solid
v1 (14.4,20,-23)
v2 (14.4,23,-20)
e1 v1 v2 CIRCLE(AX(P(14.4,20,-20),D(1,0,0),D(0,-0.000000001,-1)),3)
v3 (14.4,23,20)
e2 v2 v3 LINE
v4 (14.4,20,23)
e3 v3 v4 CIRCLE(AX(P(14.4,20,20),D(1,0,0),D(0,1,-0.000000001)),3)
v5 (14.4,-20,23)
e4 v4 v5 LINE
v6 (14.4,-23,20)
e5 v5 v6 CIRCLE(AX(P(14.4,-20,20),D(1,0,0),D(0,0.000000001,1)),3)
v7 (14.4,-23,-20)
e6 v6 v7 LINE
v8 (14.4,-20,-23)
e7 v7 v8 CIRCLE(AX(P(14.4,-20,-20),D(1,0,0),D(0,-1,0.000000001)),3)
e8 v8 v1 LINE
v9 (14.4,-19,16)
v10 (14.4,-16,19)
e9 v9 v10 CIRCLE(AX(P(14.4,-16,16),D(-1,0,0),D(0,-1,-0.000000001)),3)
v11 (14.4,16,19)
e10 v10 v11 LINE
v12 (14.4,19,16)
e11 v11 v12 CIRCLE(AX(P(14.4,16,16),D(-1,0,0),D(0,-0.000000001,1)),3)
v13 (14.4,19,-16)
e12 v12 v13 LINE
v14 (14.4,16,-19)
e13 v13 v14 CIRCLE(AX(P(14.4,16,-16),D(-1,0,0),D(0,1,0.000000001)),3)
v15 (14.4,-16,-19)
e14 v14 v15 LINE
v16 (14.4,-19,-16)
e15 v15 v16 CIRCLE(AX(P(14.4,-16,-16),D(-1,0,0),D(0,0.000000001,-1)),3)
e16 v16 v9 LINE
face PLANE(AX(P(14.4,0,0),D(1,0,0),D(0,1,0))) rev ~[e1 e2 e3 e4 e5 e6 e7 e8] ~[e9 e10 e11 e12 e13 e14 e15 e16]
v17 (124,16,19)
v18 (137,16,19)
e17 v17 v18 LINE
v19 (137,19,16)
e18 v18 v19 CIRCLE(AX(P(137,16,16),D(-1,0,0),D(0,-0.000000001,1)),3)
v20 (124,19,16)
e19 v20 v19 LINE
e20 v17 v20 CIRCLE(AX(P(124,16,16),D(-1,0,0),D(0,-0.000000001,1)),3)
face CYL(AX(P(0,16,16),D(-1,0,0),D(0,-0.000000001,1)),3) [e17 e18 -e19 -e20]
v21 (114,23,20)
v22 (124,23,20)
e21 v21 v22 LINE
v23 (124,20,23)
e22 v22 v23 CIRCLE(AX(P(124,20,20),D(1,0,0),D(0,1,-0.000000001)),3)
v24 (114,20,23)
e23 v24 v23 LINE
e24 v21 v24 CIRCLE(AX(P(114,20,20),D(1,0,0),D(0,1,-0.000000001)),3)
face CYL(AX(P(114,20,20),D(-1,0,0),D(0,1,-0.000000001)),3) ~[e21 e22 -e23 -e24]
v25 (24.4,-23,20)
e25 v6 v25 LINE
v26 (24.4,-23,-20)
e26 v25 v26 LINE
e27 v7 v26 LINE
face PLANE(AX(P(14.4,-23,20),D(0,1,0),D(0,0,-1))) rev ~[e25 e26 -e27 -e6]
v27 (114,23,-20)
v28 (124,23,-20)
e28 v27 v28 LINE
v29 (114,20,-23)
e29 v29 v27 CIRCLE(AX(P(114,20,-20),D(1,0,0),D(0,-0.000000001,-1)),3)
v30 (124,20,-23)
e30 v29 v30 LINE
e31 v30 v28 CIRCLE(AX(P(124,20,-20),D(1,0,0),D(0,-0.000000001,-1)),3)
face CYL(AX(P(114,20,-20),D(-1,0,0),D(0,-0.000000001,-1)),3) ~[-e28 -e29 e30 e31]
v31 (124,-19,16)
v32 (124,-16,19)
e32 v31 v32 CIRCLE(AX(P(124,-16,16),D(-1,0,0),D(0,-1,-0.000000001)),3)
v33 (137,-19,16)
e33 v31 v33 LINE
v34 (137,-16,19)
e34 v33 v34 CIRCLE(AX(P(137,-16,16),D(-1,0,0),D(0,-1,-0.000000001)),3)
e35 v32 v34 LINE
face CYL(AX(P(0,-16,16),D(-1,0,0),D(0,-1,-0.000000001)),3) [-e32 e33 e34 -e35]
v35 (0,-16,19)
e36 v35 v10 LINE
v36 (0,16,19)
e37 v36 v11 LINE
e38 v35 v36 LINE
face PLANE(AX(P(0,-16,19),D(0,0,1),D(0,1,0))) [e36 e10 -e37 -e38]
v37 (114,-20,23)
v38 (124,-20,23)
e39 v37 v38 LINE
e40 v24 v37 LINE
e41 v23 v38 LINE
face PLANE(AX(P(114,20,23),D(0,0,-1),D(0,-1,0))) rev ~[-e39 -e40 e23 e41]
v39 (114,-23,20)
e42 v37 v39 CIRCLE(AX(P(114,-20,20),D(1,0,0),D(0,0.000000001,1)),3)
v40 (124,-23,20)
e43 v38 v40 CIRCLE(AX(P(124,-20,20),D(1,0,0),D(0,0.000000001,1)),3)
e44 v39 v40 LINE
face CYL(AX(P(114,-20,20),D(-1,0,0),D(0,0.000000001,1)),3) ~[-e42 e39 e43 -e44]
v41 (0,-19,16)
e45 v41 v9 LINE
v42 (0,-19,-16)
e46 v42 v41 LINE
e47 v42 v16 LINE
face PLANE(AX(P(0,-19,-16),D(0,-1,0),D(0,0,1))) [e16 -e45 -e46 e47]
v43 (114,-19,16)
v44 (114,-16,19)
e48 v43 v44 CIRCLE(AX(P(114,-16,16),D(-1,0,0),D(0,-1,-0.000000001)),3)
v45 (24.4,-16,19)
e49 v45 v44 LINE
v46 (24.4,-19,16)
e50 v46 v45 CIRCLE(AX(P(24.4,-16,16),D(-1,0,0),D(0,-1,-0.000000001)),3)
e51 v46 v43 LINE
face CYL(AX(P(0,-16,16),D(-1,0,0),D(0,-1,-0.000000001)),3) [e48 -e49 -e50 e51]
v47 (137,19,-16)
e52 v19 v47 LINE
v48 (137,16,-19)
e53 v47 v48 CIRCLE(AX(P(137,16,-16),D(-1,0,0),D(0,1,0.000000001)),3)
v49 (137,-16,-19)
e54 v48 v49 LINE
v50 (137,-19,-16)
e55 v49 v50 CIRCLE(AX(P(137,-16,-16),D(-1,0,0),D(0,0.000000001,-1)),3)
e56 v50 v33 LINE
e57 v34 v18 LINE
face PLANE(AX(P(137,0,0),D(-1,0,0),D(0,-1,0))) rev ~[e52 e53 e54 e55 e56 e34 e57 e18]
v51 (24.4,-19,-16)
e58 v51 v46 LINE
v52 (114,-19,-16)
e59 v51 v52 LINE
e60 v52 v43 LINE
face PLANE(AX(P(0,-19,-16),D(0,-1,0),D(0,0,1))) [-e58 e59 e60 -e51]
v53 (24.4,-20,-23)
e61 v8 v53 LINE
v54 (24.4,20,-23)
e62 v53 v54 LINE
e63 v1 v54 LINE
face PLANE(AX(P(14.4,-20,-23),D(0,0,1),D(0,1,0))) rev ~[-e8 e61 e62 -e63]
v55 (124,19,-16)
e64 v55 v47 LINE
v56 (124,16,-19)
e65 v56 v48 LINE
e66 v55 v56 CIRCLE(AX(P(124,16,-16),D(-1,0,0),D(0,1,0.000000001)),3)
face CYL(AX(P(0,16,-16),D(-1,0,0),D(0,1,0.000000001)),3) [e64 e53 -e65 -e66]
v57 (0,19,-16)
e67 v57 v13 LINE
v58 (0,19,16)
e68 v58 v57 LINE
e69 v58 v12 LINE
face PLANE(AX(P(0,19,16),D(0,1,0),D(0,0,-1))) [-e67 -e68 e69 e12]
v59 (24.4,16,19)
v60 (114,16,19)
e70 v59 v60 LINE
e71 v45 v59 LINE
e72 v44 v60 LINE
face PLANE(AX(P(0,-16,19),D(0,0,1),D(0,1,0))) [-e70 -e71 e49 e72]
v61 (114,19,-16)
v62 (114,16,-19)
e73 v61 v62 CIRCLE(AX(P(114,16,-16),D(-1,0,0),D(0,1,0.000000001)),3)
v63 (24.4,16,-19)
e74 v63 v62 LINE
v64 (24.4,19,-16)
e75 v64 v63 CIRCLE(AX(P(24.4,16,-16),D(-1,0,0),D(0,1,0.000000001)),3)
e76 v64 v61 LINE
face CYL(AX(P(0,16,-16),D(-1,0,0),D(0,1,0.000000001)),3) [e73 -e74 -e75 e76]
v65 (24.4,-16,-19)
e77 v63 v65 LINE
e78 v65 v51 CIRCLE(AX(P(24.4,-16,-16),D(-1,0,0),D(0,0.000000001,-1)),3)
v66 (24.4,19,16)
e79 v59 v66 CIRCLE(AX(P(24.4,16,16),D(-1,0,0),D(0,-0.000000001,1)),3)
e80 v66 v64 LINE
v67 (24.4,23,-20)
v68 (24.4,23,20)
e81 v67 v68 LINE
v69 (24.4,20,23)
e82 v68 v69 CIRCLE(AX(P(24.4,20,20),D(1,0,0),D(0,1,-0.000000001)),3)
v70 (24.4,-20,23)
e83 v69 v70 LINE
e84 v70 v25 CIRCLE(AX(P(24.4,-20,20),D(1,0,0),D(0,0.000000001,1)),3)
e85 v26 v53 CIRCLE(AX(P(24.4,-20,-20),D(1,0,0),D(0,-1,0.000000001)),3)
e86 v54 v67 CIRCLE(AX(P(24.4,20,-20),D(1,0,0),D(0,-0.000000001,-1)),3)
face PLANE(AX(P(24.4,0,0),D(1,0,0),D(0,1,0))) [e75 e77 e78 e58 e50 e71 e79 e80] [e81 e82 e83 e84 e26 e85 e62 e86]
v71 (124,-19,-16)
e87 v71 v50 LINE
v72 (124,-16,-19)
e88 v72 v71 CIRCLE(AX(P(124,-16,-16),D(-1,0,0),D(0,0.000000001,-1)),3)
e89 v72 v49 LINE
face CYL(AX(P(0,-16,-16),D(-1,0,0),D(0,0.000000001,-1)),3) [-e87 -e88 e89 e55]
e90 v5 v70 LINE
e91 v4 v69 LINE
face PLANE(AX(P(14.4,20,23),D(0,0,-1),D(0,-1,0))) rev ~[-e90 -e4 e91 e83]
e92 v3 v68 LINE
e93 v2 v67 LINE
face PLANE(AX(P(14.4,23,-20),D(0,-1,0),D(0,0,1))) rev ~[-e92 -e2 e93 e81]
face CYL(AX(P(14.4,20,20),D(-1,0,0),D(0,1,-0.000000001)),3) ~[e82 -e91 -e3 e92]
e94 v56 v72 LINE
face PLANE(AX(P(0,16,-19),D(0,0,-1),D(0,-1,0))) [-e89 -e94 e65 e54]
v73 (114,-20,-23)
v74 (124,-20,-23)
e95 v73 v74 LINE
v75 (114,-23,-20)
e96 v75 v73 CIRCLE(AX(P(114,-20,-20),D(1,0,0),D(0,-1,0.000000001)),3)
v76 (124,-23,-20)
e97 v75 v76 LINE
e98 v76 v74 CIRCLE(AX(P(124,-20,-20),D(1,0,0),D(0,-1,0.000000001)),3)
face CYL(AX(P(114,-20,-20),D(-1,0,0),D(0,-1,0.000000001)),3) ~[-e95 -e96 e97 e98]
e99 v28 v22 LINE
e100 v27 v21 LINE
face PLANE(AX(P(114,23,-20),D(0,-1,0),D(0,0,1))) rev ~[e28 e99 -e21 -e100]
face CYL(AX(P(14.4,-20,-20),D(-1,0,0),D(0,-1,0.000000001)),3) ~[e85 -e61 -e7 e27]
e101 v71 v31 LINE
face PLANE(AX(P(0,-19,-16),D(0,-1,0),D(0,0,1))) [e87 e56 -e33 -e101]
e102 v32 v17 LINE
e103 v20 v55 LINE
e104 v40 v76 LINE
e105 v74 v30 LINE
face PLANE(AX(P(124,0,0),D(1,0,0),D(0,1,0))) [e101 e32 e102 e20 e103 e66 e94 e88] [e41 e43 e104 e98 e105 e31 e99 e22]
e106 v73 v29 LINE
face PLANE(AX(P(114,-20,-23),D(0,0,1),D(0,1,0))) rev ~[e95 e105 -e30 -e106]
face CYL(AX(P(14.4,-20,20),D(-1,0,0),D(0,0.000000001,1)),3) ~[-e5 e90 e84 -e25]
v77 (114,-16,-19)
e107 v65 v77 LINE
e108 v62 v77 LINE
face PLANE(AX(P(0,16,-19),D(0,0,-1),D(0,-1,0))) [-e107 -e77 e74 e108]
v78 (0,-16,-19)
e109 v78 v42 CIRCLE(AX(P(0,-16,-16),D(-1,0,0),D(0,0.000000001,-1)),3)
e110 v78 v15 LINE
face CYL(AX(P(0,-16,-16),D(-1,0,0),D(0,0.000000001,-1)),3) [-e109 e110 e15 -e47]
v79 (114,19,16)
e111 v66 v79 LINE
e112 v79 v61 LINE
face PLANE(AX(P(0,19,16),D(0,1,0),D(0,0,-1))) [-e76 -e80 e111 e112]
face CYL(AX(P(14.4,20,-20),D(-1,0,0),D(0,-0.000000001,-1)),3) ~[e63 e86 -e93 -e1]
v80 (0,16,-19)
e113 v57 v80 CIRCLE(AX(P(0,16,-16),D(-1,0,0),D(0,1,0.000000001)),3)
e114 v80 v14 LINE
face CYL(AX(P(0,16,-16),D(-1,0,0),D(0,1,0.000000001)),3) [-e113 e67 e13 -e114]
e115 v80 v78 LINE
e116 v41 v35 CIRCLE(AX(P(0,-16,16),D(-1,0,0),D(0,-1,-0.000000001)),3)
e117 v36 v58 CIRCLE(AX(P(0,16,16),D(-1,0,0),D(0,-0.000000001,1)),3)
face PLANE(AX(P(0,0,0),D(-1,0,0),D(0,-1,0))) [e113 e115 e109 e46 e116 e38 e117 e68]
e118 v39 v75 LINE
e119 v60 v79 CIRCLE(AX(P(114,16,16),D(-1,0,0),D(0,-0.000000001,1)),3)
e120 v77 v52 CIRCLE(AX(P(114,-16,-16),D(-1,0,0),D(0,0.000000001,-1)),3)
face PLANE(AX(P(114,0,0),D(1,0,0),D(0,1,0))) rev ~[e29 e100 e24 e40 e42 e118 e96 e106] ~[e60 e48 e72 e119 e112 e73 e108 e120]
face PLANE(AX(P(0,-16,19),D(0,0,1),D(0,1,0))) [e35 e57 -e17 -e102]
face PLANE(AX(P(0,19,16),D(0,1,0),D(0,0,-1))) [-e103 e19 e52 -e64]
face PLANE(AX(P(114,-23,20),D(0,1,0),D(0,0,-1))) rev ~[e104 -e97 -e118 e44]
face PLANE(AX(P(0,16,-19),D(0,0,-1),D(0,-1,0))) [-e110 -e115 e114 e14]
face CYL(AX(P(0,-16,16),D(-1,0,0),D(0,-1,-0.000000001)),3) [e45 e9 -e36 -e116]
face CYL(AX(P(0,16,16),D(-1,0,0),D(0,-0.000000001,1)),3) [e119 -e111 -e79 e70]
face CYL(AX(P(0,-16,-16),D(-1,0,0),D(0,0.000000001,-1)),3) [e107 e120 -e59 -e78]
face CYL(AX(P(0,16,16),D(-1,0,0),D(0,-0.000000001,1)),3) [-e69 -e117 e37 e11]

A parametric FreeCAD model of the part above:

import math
import FreeCAD as App
import Part
import Sketcher

V = App.Vector
Q = App.Units.Quantity

doc = App.newDocument("Part")
body = doc.addObject("PartDesign::Body", "Body")

sketch1 = doc.addObject("Sketcher::SketchObject", "Sketch")
body.addObject(sketch1)
sketch1.AttachmentSupport = (doc.YZ_Plane, [""])
sketch1.MapMode = "FlatFace"
sketch1.addGeometry(Part.LineSegment(V(16, 19, 0), V(-16, 19, 0)), False)
sketch1.addGeometry(Part.ArcOfCircle(Part.Circle(V(-16, 16, 0), V(0, 0, 1), 3), math.radians(90), math.radians(180)), False)
sketch1.addGeometry(Part.LineSegment(V(-19, 16, 0), V(-19, -16, 0)), False)
sketch1.addGeometry(Part.ArcOfCircle(Part.Circle(V(-16, -16, 0), V(0, 0, 1), 3), math.radians(180), math.radians(270)), False)
sketch1.addGeometry(Part.LineSegment(V(-16, -19, 0), V(16, -19, 0)), False)
sketch1.addGeometry(Part.ArcOfCircle(Part.Circle(V(16, -16, 0), V(0, 0, 1), 3), math.radians(-90), math.radians(0)), False)
sketch1.addGeometry(Part.LineSegment(V(19, -16, 0), V(19, 16, 0)), False)
sketch1.addGeometry(Part.ArcOfCircle(Part.Circle(V(16, 16, 0), V(0, 0, 1), 3), math.radians(0), math.radians(90)), False)
sketch1.addConstraint(Sketcher.Constraint("Tangent", 0, 2, 1, 1))
sketch1.addConstraint(Sketcher.Constraint("Tangent", 1, 2, 2, 1))
sketch1.addConstraint(Sketcher.Constraint("Tangent", 2, 2, 3, 1))
sketch1.addConstraint(Sketcher.Constraint("Tangent", 3, 2, 4, 1))
sketch1.addConstraint(Sketcher.Constraint("Tangent", 4, 2, 5, 1))
sketch1.addConstraint(Sketcher.Constraint("Tangent", 5, 2, 6, 1))
sketch1.addConstraint(Sketcher.Constraint("Tangent", 6, 2, 7, 1))
sketch1.addConstraint(Sketcher.Constraint("Tangent", 7, 2, 0, 1))
sketch1.addConstraint(Sketcher.Constraint("Horizontal", 0))
sketch1.addConstraint(Sketcher.Constraint("Vertical", 2))
sketch1.addConstraint(Sketcher.Constraint("Horizontal", 4))
sketch1.addConstraint(Sketcher.Constraint("Vertical", 6))
sketch1.addConstraint(Sketcher.Constraint("Equal", 1, 3))
sketch1.addConstraint(Sketcher.Constraint("Equal", 3, 5))
sketch1.addConstraint(Sketcher.Constraint("Equal", 5, 7))
sketch1.addConstraint(Sketcher.Constraint("Symmetric", 1, 3, 5, 3, -1, 1))
sketch1.addConstraint(Sketcher.Constraint("Equal", 4, 2))
sketch1.addConstraint(Sketcher.Constraint("Radius", 1, Q("3 mm")))
sketch1.addConstraint(Sketcher.Constraint("DistanceX", 0, 2, 0, 1, Q("32 mm")))
pad1 = doc.addObject("PartDesign::Pad", "Pad")
body.addObject(pad1)
pad1.Profile = sketch1
pad1.Length = 137

sketch2 = doc.addObject("Sketcher::SketchObject", "Sketch001")
body.addObject(sketch2)
sketch2.AttachmentSupport = (doc.YZ_Plane, [""])
sketch2.MapMode = "FlatFace"
sketch2.AttachmentOffset = App.Placement(V(0, 0, 14.4), App.Rotation())
sketch2.addGeometry(Part.LineSegment(V(-20, 23, 0), V(20, 23, 0)), False)
sketch2.addGeometry(Part.ArcOfCircle(Part.Circle(V(20, 20, 0), V(0, 0, 1), 3), math.radians(0), math.radians(90)), False)
sketch2.addGeometry(Part.LineSegment(V(23, 20, 0), V(23, -20, 0)), False)
sketch2.addGeometry(Part.ArcOfCircle(Part.Circle(V(20, -20, 0), V(0, 0, 1), 3), math.radians(-90), math.radians(0)), False)
sketch2.addGeometry(Part.LineSegment(V(20, -23, 0), V(-20, -23, 0)), False)
sketch2.addGeometry(Part.ArcOfCircle(Part.Circle(V(-20, -20, 0), V(0, 0, 1), 3), math.radians(180), math.radians(270)), False)
sketch2.addGeometry(Part.LineSegment(V(-23, -20, 0), V(-23, 20, 0)), False)
sketch2.addGeometry(Part.ArcOfCircle(Part.Circle(V(-20, 20, 0), V(0, 0, 1), 3), math.radians(90), math.radians(180)), False)
sketch2.addConstraint(Sketcher.Constraint("Tangent", 0, 2, 1, 2))
sketch2.addConstraint(Sketcher.Constraint("Tangent", 1, 1, 2, 1))
sketch2.addConstraint(Sketcher.Constraint("Tangent", 2, 2, 3, 2))
sketch2.addConstraint(Sketcher.Constraint("Tangent", 3, 1, 4, 1))
sketch2.addConstraint(Sketcher.Constraint("Tangent", 4, 2, 5, 2))
sketch2.addConstraint(Sketcher.Constraint("Tangent", 5, 1, 6, 1))
sketch2.addConstraint(Sketcher.Constraint("Tangent", 6, 2, 7, 2))
sketch2.addConstraint(Sketcher.Constraint("Tangent", 7, 1, 0, 1))
sketch2.addConstraint(Sketcher.Constraint("Horizontal", 0))
sketch2.addConstraint(Sketcher.Constraint("Vertical", 2))
sketch2.addConstraint(Sketcher.Constraint("Horizontal", 4))
sketch2.addConstraint(Sketcher.Constraint("Vertical", 6))
sketch2.addConstraint(Sketcher.Constraint("Equal", 1, 3))
sketch2.addConstraint(Sketcher.Constraint("Equal", 3, 5))
sketch2.addConstraint(Sketcher.Constraint("Equal", 5, 7))
sketch2.addConstraint(Sketcher.Constraint("Symmetric", 1, 3, 5, 3, -1, 1))
sketch2.addConstraint(Sketcher.Constraint("Equal", 4, 2))
sketch2.addConstraint(Sketcher.Constraint("Radius", 1, Q("3 mm")))
sketch2.addConstraint(Sketcher.Constraint("DistanceX", 0, 1, 0, 2, Q("40 mm")))
pad2 = doc.addObject("PartDesign::Pad", "Pad001")
body.addObject(pad2)
pad2.Profile = sketch2
pad2.Length = 10

sketch3 = doc.addObject("Sketcher::SketchObject", "Sketch002")
body.addObject(sketch3)
sketch3.AttachmentSupport = (doc.YZ_Plane, [""])
sketch3.MapMode = "FlatFace"
sketch3.AttachmentOffset = App.Placement(V(0, 0, 114), App.Rotation())
sketch3.addGeometry(Part.LineSegment(V(-20, 23, 0), V(20, 23, 0)), False)
sketch3.addGeometry(Part.ArcOfCircle(Part.Circle(V(20, 20, 0), V(0, 0, 1), 3), math.radians(0), math.radians(90)), False)
sketch3.addGeometry(Part.LineSegment(V(23, 20, 0), V(23, -20, 0)), False)
sketch3.addGeometry(Part.ArcOfCircle(Part.Circle(V(20, -20, 0), V(0, 0, 1), 3), math.radians(-90), math.radians(0)), False)
sketch3.addGeometry(Part.LineSegment(V(20, -23, 0), V(-20, -23, 0)), False)
sketch3.addGeometry(Part.ArcOfCircle(Part.Circle(V(-20, -20, 0), V(0, 0, 1), 3), math.radians(180), math.radians(270)), False)
sketch3.addGeometry(Part.LineSegment(V(-23, -20, 0), V(-23, 20, 0)), False)
sketch3.addGeometry(Part.ArcOfCircle(Part.Circle(V(-20, 20, 0), V(0, 0, 1), 3), math.radians(90), math.radians(180)), False)
sketch3.addConstraint(Sketcher.Constraint("Tangent", 0, 2, 1, 2))
sketch3.addConstraint(Sketcher.Constraint("Tangent", 1, 1, 2, 1))
sketch3.addConstraint(Sketcher.Constraint("Tangent", 2, 2, 3, 2))
sketch3.addConstraint(Sketcher.Constraint("Tangent", 3, 1, 4, 1))
sketch3.addConstraint(Sketcher.Constraint("Tangent", 4, 2, 5, 2))
sketch3.addConstraint(Sketcher.Constraint("Tangent", 5, 1, 6, 1))
sketch3.addConstraint(Sketcher.Constraint("Tangent", 6, 2, 7, 2))
sketch3.addConstraint(Sketcher.Constraint("Tangent", 7, 1, 0, 1))
sketch3.addConstraint(Sketcher.Constraint("Horizontal", 0))
sketch3.addConstraint(Sketcher.Constraint("Vertical", 2))
sketch3.addConstraint(Sketcher.Constraint("Horizontal", 4))
sketch3.addConstraint(Sketcher.Constraint("Vertical", 6))
sketch3.addConstraint(Sketcher.Constraint("Equal", 1, 3))
sketch3.addConstraint(Sketcher.Constraint("Equal", 3, 5))
sketch3.addConstraint(Sketcher.Constraint("Equal", 5, 7))
sketch3.addConstraint(Sketcher.Constraint("Symmetric", 1, 3, 5, 3, -1, 1))
sketch3.addConstraint(Sketcher.Constraint("Equal", 4, 2))
sketch3.addConstraint(Sketcher.Constraint("Radius", 1, Q("3 mm")))
sketch3.addConstraint(Sketcher.Constraint("DistanceX", 0, 1, 0, 2, Q("40 mm")))
pad3 = doc.addObject("PartDesign::Pad", "Pad002")
body.addObject(pad3)
pad3.Profile = sketch3
pad3.Length = 10

doc.recompute()
